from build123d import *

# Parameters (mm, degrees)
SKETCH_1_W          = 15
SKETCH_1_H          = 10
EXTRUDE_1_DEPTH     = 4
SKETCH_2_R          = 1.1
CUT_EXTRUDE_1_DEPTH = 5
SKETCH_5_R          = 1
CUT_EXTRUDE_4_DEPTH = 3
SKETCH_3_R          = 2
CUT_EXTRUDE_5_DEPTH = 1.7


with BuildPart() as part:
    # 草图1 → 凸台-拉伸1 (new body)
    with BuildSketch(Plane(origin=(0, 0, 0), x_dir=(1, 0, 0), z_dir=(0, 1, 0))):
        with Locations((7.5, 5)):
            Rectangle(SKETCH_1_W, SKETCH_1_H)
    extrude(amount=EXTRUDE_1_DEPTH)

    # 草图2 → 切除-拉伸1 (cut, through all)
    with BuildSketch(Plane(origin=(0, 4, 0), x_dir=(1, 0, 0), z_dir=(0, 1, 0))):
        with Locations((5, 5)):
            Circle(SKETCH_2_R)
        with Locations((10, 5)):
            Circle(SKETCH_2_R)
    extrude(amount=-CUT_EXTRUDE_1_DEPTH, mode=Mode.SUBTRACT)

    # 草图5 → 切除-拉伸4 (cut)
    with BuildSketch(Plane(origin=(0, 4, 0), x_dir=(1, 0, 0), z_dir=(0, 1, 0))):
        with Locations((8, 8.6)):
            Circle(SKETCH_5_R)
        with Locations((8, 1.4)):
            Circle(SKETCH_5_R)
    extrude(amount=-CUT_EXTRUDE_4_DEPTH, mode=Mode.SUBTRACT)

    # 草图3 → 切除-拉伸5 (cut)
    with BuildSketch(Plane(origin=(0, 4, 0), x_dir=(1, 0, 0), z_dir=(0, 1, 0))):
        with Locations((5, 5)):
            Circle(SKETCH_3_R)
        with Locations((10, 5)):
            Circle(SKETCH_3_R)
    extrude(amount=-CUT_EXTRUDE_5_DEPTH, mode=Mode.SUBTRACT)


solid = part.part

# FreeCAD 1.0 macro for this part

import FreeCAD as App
import Part
import Sketcher
Q = App.Units.Quantity

doc = App.newDocument("Part")
body = doc.addObject("PartDesign::Body", "Body")

sketch1 = doc.addObject("Sketcher::SketchObject", "Sketch")
body.addObject(sketch1)
sketch1.AttachmentSupport = (doc.XZ_Plane, [""])
sketch1.MapMode = "FlatFace"
sketch1.addGeometry([
    Part.LineSegment(App.Vector(0, -10, 0), App.Vector(0, 0, 0)),
    Part.LineSegment(App.Vector(0, 0, 0), App.Vector(15, 0, 0)),
    Part.LineSegment(App.Vector(15, 0, 0), App.Vector(15, -10, 0)),
    Part.LineSegment(App.Vector(15, -10, 0), App.Vector(0, -10, 0)),
], False)
sketch1.addConstraint([
    Sketcher.Constraint("Coincident", 0, 2, 1, 1),
    Sketcher.Constraint("Coincident", 1, 2, 2, 1),
    Sketcher.Constraint("Coincident", 2, 2, 3, 1),
    Sketcher.Constraint("Coincident", 3, 2, 0, 1),
    Sketcher.Constraint("Vertical", 0),
    Sketcher.Constraint("Horizontal", 1),
    Sketcher.Constraint("Vertical", 2),
    Sketcher.Constraint("Horizontal", 3),
    Sketcher.Constraint("Coincident", 0, 2, -1, 1),
    Sketcher.Constraint("DistanceX", 1, 1, 1, 2, Q("15 mm")),
    Sketcher.Constraint("DistanceY", 0, 1, 0, 2, Q("10 mm")),
])
pad1 = doc.addObject("PartDesign::Pad", "Pad")
body.addObject(pad1)
pad1.Profile = sketch1
pad1.Length = 4
pad1.Reversed = True

sketch2 = doc.addObject("Sketcher::SketchObject", "Sketch001")
body.addObject(sketch2)
sketch2.AttachmentSupport = (doc.XZ_Plane, [""])
sketch2.MapMode = "FlatFace"
sketch2.AttachmentOffset = App.Placement(App.Vector(0, 0, -4), App.Rotation())
sketch2.addGeometry([
    Part.Circle(App.Vector(5, -5, 0), App.Vector(0, 0, 1), 1.1),
    Part.Circle(App.Vector(10, -5, 0), App.Vector(0, 0, 1), 1.1),
], False)
sketch2.addConstraint([
    Sketcher.Constraint("Equal", 0, 1),
    Sketcher.Constraint("Horizontal", 0, 3, 1, 3),
    Sketcher.Constraint("Diameter", 0, Q("2.2 mm")),
    Sketcher.Constraint("DistanceX", -1, 1, 0, 3, Q("5 mm")),
    Sketcher.Constraint("DistanceY", 0, 3, -1, 1, Q("5 mm")),
    Sketcher.Constraint("DistanceX", -1, 1, 1, 3, Q("10 mm")),
])
pocket1 = doc.addObject("PartDesign::Pocket", "Pocket")
body.addObject(pocket1)
pocket1.Profile = sketch2
pocket1.Type = "ThroughAll"
pocket1.Reversed = True

sketch3 = doc.addObject("Sketcher::SketchObject", "Sketch002")
body.addObject(sketch3)
sketch3.AttachmentSupport = (doc.XZ_Plane, [""])
sketch3.MapMode = "FlatFace"
sketch3.AttachmentOffset = App.Placement(App.Vector(0, 0, -4), App.Rotation())
sketch3.addGeometry([
    Part.Circle(App.Vector(8, -8.6, 0), App.Vector(0, 0, 1), 1),
    Part.Circle(App.Vector(8, -1.4, 0), App.Vector(0, 0, 1), 1),
], False)
sketch3.addConstraint([
    Sketcher.Constraint("Equal", 0, 1),
    Sketcher.Constraint("Vertical", 0, 3, 1, 3),
    Sketcher.Constraint("Diameter", 0, Q("2 mm")),
    Sketcher.Constraint("DistanceX", -1, 1, 0, 3, Q("8 mm")),
    Sketcher.Constraint("DistanceY", 0, 3, -1, 1, Q("8.6 mm")),
    Sketcher.Constraint("DistanceY", 1, 3, -1, 1, Q("1.4 mm")),
])
pocket2 = doc.addObject("PartDesign::Pocket", "Pocket001")
body.addObject(pocket2)
pocket2.Profile = sketch3
pocket2.Length = 3
pocket2.Reversed = True

sketch4 = doc.addObject("Sketcher::SketchObject", "Sketch003")
body.addObject(sketch4)
sketch4.AttachmentSupport = (doc.XZ_Plane, [""])
sketch4.MapMode = "FlatFace"
sketch4.AttachmentOffset = App.Placement(App.Vector(0, 0, -4), App.Rotation())
sketch4.addGeometry([
    Part.Circle(App.Vector(5, -5, 0), App.Vector(0, 0, 1), 2),
    Part.Circle(App.Vector(10, -5, 0), App.Vector(0, 0, 1), 2),
], False)
sketch4.addConstraint([
    Sketcher.Constraint("Equal", 0, 1),
    Sketcher.Constraint("Horizontal", 0, 3, 1, 3),
    Sketcher.Constraint("Diameter", 0, Q("4 mm")),
    Sketcher.Constraint("DistanceX", -1, 1, 0, 3, Q("5 mm")),
    Sketcher.Constraint("DistanceY", 0, 3, -1, 1, Q("5 mm")),
    Sketcher.Constraint("DistanceX", -1, 1, 1, 3, Q("10 mm")),
])
pocket3 = doc.addObject("PartDesign::Pocket", "Pocket002")
body.addObject(pocket3)
pocket3.Profile = sketch4
pocket3.Length = 1.7
pocket3.Reversed = True

doc.recompute()
